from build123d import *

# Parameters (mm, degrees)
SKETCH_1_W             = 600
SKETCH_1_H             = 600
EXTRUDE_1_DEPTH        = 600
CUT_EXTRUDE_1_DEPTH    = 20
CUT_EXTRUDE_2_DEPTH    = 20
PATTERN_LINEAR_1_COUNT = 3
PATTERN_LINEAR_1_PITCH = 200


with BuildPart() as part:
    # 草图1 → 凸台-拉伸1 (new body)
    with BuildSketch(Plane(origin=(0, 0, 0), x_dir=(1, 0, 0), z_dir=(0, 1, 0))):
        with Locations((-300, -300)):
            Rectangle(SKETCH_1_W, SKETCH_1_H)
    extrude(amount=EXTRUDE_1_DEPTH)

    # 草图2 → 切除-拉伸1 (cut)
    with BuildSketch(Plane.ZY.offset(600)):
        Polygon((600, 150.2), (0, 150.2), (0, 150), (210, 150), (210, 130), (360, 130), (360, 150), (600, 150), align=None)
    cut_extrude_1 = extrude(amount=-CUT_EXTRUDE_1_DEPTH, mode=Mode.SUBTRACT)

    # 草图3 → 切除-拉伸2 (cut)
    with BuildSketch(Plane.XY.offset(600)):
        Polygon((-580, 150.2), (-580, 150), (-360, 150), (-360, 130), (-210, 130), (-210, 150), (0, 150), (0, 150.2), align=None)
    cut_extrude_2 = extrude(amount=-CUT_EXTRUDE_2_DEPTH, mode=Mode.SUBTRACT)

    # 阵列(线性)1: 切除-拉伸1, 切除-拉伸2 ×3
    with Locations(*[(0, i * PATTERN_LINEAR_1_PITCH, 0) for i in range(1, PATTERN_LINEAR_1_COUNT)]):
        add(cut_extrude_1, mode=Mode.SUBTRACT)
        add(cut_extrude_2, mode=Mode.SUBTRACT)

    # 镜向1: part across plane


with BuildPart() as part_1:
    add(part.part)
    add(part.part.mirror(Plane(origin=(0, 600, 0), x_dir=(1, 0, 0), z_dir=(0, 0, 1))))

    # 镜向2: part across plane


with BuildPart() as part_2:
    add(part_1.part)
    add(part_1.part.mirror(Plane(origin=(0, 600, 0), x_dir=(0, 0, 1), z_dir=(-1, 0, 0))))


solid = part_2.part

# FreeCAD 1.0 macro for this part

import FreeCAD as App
import Part
import Sketcher
Q = App.Units.Quantity

doc = App.newDocument("Part")
body = doc.addObject("PartDesign::Body", "Body")

sketch1 = body.newObject("Sketcher::SketchObject", "Sketch")
sketch1.AttachmentSupport = (doc.getObject("XZ_Plane"), [""])
sketch1.MapMode = "FlatFace"
sketch1.addGeometry([
    Part.LineSegment(App.Vector(-600, 0, 0), App.Vector(-600, 600, 0)),
    Part.LineSegment(App.Vector(-600, 600, 0), App.Vector(0, 600, 0)),
    Part.LineSegment(App.Vector(0, 600, 0), App.Vector(0, 0, 0)),
    Part.LineSegment(App.Vector(0, 0, 0), App.Vector(-600, 0, 0)),
], False)
sketch1.addConstraint([
    Sketcher.Constraint("Coincident", 0, 2, 1, 1),
    Sketcher.Constraint("Coincident", 1, 2, 2, 1),
    Sketcher.Constraint("Coincident", 2, 2, 3, 1),
    Sketcher.Constraint("Coincident", 3, 2, 0, 1),
    Sketcher.Constraint("Vertical", 0),
    Sketcher.Constraint("Horizontal", 1),
    Sketcher.Constraint("Vertical", 2),
    Sketcher.Constraint("Horizontal", 3),
    Sketcher.Constraint("Coincident", 2, 2, -1, 1),
    Sketcher.Constraint("Equal", 3, 0),
    Sketcher.Constraint("DistanceX", 1, 1, 1, 2, Q("600 mm")),
])
pad1 = body.newObject("PartDesign::Pad", "Pad")
pad1.Profile = sketch1
pad1.Length = 600
pad1.Reversed = True

sketch2 = body.newObject("Sketcher::SketchObject", "Sketch001")
sketch2.AttachmentSupport = (doc.getObject("YZ_Plane"), [""])
sketch2.MapMode = "FlatFace"
sketch2.AttachmentOffset = App.Placement(App.Vector(0, 0, -600), App.Rotation())
sketch2.addGeometry([
    Part.LineSegment(App.Vector(150.2, 600, 0), App.Vector(150.2, 0, 0)),
    Part.LineSegment(App.Vector(150.2, 0, 0), App.Vector(150, 0, 0)),
    Part.LineSegment(App.Vector(150, 0, 0), App.Vector(150, 210, 0)),
    Part.LineSegment(App.Vector(150, 210, 0), App.Vector(130, 210, 0)),
    Part.LineSegment(App.Vector(130, 210, 0), App.Vector(130, 360, 0)),
    Part.LineSegment(App.Vector(130, 360, 0), App.Vector(150, 360, 0)),
    Part.LineSegment(App.Vector(150, 360, 0), App.Vector(150, 600, 0)),
    Part.LineSegment(App.Vector(150, 600, 0), App.Vector(150.2, 600, 0)),
], False)
sketch2.addConstraint([
    Sketcher.Constraint("Coincident", 0, 2, 1, 1),
    Sketcher.Constraint("Coincident", 1, 2, 2, 1),
    Sketcher.Constraint("Coincident", 2, 2, 3, 1),
    Sketcher.Constraint("Coincident", 3, 2, 4, 1),
    Sketcher.Constraint("Coincident", 4, 2, 5, 1),
    Sketcher.Constraint("Coincident", 5, 2, 6, 1),
    Sketcher.Constraint("Coincident", 6, 2, 7, 1),
    Sketcher.Constraint("Coincident", 7, 2, 0, 1),
    Sketcher.Constraint("Vertical", 0),
    Sketcher.Constraint("Horizontal", 1),
    Sketcher.Constraint("Vertical", 2),
    Sketcher.Constraint("Horizontal", 3),
    Sketcher.Constraint("Vertical", 4),
    Sketcher.Constraint("Horizontal", 5),
    Sketcher.Constraint("Vertical", 6),
    Sketcher.Constraint("Horizontal", 7),
    Sketcher.Constraint("PointOnObject", 0, 2, -1),
    Sketcher.Constraint("Vertical", 2, 2, 5, 2),
    Sketcher.Constraint("DistanceX", 3, 2, 3, 1, Q("20 mm")),
    Sketcher.Constraint("DistanceY", 0, 2, 0, 1, Q("600 mm")),
    Sketcher.Constraint("DistanceY", 2, 1, 2, 2, Q("210 mm")),
    Sketcher.Constraint("DistanceY", 4, 1, 4, 2, Q("150 mm")),
    Sketcher.Constraint("DistanceX", 1, 2, 1, 1, Q("0.2 mm")),
    Sketcher.Constraint("DistanceX", -1, 1, 1, 2, Q("150 mm")),
])
pocket1 = body.newObject("PartDesign::Pocket", "Pocket")
pocket1.Profile = sketch2
pocket1.Length = 20
pocket1.Reversed = True

sketch3 = body.newObject("Sketcher::SketchObject", "Sketch002")
sketch3.AttachmentSupport = (doc.getObject("XY_Plane"), [""])
sketch3.MapMode = "FlatFace"
sketch3.AttachmentOffset = App.Placement(App.Vector(0, 0, 600), App.Rotation())
sketch3.addGeometry([
    Part.LineSegment(App.Vector(-580, 150.2, 0), App.Vector(-580, 150, 0)),
    Part.LineSegment(App.Vector(-580, 150, 0), App.Vector(-360, 150, 0)),
    Part.LineSegment(App.Vector(-360, 150, 0), App.Vector(-360, 130, 0)),
    Part.LineSegment(App.Vector(-360, 130, 0), App.Vector(-210, 130, 0)),
    Part.LineSegment(App.Vector(-210, 130, 0), App.Vector(-210, 150, 0)),
    Part.LineSegment(App.Vector(-210, 150, 0), App.Vector(0, 150, 0)),
    Part.LineSegment(App.Vector(0, 150, 0), App.Vector(0, 150.2, 0)),
    Part.LineSegment(App.Vector(0, 150.2, 0), App.Vector(-580, 150.2, 0)),
], False)
sketch3.addConstraint([
    Sketcher.Constraint("Coincident", 0, 2, 1, 1),
    Sketcher.Constraint("Coincident", 1, 2, 2, 1),
    Sketcher.Constraint("Coincident", 2, 2, 3, 1),
    Sketcher.Constraint("Coincident", 3, 2, 4, 1),
    Sketcher.Constraint("Coincident", 4, 2, 5, 1),
    Sketcher.Constraint("Coincident", 5, 2, 6, 1),
    Sketcher.Constraint("Coincident", 6, 2, 7, 1),
    Sketcher.Constraint("Coincident", 7, 2, 0, 1),
    Sketcher.Constraint("Vertical", 0),
    Sketcher.Constraint("Horizontal", 1),
    Sketcher.Constraint("Vertical", 2),
    Sketcher.Constraint("Horizontal", 3),
    Sketcher.Constraint("Vertical", 4),
    Sketcher.Constraint("Horizontal", 5),
    Sketcher.Constraint("Vertical", 6),
    Sketcher.Constraint("Horizontal", 7),
    Sketcher.Constraint("PointOnObject", 5, 2, -2),
    Sketcher.Constraint("Horizontal", 1, 2, 4, 2),
    Sketcher.Constraint("DistanceX", 1, 1, 1, 2, Q("220 mm")),
    Sketcher.Constraint("DistanceX", 3, 1, 3, 2, Q("150 mm")),
    Sketcher.Constraint("DistanceX", 5, 1, 5, 2, Q("210 mm")),
    Sketcher.Constraint("DistanceY", 2, 2, 2, 1, Q("20 mm")),
    Sketcher.Constraint("DistanceY", 0, 2, 0, 1, Q("0.2 mm")),
    Sketcher.Constraint("DistanceY", -1, 1, 0, 2, Q("150 mm")),
])
pocket2 = body.newObject("PartDesign::Pocket", "Pocket001")
pocket2.Profile = sketch3
pocket2.Length = 20
doc.recompute()

linearpattern = body.newObject("PartDesign::LinearPattern", "LinearPattern")
linearpattern.Originals = [pocket1, pocket2]
linearpattern.Direction = (doc.getObject("Y_Axis"), [""])
linearpattern.Mode = "offset"
linearpattern.Offset = 200
linearpattern.Occurrences = 3
body.Tip = linearpattern
body2 = doc.addObject("PartDesign::Body", "Body001")
doc.recompute()

body2.BaseFeature = body
doc.recompute()

mirroring = doc.addObject("Part::Mirroring", "Mirroring")
mirroring.Source = body
mirroring.Base = App.Vector(0, 600, 0)
mirroring.Normal = App.Vector(0, 0, 1)
body3 = doc.addObject("PartDesign::Body", "Body002")
body3.BaseFeature = mirroring
boolean = body2.newObject("PartDesign::Boolean", "Boolean")
boolean.Type = "Fuse"
boolean.addObjects([body3])
doc.recompute()
body4 = doc.addObject("PartDesign::Body", "Body003")
doc.recompute()

body4.BaseFeature = body2
doc.recompute()

mirroring2 = doc.addObject("Part::Mirroring", "Mirroring001")
mirroring2.Source = body2
mirroring2.Base = App.Vector(0, 600, 0)
mirroring2.Normal = App.Vector(-1, 0, 0)
body5 = doc.addObject("PartDesign::Body", "Body004")
body5.BaseFeature = mirroring2
boolean2 = body4.newObject("PartDesign::Boolean", "Boolean001")
boolean2.Type = "Fuse"
boolean2.addObjects([body5])
doc.recompute()
mirroring.Visibility = False
mirroring2.Visibility = False

doc.recompute()
